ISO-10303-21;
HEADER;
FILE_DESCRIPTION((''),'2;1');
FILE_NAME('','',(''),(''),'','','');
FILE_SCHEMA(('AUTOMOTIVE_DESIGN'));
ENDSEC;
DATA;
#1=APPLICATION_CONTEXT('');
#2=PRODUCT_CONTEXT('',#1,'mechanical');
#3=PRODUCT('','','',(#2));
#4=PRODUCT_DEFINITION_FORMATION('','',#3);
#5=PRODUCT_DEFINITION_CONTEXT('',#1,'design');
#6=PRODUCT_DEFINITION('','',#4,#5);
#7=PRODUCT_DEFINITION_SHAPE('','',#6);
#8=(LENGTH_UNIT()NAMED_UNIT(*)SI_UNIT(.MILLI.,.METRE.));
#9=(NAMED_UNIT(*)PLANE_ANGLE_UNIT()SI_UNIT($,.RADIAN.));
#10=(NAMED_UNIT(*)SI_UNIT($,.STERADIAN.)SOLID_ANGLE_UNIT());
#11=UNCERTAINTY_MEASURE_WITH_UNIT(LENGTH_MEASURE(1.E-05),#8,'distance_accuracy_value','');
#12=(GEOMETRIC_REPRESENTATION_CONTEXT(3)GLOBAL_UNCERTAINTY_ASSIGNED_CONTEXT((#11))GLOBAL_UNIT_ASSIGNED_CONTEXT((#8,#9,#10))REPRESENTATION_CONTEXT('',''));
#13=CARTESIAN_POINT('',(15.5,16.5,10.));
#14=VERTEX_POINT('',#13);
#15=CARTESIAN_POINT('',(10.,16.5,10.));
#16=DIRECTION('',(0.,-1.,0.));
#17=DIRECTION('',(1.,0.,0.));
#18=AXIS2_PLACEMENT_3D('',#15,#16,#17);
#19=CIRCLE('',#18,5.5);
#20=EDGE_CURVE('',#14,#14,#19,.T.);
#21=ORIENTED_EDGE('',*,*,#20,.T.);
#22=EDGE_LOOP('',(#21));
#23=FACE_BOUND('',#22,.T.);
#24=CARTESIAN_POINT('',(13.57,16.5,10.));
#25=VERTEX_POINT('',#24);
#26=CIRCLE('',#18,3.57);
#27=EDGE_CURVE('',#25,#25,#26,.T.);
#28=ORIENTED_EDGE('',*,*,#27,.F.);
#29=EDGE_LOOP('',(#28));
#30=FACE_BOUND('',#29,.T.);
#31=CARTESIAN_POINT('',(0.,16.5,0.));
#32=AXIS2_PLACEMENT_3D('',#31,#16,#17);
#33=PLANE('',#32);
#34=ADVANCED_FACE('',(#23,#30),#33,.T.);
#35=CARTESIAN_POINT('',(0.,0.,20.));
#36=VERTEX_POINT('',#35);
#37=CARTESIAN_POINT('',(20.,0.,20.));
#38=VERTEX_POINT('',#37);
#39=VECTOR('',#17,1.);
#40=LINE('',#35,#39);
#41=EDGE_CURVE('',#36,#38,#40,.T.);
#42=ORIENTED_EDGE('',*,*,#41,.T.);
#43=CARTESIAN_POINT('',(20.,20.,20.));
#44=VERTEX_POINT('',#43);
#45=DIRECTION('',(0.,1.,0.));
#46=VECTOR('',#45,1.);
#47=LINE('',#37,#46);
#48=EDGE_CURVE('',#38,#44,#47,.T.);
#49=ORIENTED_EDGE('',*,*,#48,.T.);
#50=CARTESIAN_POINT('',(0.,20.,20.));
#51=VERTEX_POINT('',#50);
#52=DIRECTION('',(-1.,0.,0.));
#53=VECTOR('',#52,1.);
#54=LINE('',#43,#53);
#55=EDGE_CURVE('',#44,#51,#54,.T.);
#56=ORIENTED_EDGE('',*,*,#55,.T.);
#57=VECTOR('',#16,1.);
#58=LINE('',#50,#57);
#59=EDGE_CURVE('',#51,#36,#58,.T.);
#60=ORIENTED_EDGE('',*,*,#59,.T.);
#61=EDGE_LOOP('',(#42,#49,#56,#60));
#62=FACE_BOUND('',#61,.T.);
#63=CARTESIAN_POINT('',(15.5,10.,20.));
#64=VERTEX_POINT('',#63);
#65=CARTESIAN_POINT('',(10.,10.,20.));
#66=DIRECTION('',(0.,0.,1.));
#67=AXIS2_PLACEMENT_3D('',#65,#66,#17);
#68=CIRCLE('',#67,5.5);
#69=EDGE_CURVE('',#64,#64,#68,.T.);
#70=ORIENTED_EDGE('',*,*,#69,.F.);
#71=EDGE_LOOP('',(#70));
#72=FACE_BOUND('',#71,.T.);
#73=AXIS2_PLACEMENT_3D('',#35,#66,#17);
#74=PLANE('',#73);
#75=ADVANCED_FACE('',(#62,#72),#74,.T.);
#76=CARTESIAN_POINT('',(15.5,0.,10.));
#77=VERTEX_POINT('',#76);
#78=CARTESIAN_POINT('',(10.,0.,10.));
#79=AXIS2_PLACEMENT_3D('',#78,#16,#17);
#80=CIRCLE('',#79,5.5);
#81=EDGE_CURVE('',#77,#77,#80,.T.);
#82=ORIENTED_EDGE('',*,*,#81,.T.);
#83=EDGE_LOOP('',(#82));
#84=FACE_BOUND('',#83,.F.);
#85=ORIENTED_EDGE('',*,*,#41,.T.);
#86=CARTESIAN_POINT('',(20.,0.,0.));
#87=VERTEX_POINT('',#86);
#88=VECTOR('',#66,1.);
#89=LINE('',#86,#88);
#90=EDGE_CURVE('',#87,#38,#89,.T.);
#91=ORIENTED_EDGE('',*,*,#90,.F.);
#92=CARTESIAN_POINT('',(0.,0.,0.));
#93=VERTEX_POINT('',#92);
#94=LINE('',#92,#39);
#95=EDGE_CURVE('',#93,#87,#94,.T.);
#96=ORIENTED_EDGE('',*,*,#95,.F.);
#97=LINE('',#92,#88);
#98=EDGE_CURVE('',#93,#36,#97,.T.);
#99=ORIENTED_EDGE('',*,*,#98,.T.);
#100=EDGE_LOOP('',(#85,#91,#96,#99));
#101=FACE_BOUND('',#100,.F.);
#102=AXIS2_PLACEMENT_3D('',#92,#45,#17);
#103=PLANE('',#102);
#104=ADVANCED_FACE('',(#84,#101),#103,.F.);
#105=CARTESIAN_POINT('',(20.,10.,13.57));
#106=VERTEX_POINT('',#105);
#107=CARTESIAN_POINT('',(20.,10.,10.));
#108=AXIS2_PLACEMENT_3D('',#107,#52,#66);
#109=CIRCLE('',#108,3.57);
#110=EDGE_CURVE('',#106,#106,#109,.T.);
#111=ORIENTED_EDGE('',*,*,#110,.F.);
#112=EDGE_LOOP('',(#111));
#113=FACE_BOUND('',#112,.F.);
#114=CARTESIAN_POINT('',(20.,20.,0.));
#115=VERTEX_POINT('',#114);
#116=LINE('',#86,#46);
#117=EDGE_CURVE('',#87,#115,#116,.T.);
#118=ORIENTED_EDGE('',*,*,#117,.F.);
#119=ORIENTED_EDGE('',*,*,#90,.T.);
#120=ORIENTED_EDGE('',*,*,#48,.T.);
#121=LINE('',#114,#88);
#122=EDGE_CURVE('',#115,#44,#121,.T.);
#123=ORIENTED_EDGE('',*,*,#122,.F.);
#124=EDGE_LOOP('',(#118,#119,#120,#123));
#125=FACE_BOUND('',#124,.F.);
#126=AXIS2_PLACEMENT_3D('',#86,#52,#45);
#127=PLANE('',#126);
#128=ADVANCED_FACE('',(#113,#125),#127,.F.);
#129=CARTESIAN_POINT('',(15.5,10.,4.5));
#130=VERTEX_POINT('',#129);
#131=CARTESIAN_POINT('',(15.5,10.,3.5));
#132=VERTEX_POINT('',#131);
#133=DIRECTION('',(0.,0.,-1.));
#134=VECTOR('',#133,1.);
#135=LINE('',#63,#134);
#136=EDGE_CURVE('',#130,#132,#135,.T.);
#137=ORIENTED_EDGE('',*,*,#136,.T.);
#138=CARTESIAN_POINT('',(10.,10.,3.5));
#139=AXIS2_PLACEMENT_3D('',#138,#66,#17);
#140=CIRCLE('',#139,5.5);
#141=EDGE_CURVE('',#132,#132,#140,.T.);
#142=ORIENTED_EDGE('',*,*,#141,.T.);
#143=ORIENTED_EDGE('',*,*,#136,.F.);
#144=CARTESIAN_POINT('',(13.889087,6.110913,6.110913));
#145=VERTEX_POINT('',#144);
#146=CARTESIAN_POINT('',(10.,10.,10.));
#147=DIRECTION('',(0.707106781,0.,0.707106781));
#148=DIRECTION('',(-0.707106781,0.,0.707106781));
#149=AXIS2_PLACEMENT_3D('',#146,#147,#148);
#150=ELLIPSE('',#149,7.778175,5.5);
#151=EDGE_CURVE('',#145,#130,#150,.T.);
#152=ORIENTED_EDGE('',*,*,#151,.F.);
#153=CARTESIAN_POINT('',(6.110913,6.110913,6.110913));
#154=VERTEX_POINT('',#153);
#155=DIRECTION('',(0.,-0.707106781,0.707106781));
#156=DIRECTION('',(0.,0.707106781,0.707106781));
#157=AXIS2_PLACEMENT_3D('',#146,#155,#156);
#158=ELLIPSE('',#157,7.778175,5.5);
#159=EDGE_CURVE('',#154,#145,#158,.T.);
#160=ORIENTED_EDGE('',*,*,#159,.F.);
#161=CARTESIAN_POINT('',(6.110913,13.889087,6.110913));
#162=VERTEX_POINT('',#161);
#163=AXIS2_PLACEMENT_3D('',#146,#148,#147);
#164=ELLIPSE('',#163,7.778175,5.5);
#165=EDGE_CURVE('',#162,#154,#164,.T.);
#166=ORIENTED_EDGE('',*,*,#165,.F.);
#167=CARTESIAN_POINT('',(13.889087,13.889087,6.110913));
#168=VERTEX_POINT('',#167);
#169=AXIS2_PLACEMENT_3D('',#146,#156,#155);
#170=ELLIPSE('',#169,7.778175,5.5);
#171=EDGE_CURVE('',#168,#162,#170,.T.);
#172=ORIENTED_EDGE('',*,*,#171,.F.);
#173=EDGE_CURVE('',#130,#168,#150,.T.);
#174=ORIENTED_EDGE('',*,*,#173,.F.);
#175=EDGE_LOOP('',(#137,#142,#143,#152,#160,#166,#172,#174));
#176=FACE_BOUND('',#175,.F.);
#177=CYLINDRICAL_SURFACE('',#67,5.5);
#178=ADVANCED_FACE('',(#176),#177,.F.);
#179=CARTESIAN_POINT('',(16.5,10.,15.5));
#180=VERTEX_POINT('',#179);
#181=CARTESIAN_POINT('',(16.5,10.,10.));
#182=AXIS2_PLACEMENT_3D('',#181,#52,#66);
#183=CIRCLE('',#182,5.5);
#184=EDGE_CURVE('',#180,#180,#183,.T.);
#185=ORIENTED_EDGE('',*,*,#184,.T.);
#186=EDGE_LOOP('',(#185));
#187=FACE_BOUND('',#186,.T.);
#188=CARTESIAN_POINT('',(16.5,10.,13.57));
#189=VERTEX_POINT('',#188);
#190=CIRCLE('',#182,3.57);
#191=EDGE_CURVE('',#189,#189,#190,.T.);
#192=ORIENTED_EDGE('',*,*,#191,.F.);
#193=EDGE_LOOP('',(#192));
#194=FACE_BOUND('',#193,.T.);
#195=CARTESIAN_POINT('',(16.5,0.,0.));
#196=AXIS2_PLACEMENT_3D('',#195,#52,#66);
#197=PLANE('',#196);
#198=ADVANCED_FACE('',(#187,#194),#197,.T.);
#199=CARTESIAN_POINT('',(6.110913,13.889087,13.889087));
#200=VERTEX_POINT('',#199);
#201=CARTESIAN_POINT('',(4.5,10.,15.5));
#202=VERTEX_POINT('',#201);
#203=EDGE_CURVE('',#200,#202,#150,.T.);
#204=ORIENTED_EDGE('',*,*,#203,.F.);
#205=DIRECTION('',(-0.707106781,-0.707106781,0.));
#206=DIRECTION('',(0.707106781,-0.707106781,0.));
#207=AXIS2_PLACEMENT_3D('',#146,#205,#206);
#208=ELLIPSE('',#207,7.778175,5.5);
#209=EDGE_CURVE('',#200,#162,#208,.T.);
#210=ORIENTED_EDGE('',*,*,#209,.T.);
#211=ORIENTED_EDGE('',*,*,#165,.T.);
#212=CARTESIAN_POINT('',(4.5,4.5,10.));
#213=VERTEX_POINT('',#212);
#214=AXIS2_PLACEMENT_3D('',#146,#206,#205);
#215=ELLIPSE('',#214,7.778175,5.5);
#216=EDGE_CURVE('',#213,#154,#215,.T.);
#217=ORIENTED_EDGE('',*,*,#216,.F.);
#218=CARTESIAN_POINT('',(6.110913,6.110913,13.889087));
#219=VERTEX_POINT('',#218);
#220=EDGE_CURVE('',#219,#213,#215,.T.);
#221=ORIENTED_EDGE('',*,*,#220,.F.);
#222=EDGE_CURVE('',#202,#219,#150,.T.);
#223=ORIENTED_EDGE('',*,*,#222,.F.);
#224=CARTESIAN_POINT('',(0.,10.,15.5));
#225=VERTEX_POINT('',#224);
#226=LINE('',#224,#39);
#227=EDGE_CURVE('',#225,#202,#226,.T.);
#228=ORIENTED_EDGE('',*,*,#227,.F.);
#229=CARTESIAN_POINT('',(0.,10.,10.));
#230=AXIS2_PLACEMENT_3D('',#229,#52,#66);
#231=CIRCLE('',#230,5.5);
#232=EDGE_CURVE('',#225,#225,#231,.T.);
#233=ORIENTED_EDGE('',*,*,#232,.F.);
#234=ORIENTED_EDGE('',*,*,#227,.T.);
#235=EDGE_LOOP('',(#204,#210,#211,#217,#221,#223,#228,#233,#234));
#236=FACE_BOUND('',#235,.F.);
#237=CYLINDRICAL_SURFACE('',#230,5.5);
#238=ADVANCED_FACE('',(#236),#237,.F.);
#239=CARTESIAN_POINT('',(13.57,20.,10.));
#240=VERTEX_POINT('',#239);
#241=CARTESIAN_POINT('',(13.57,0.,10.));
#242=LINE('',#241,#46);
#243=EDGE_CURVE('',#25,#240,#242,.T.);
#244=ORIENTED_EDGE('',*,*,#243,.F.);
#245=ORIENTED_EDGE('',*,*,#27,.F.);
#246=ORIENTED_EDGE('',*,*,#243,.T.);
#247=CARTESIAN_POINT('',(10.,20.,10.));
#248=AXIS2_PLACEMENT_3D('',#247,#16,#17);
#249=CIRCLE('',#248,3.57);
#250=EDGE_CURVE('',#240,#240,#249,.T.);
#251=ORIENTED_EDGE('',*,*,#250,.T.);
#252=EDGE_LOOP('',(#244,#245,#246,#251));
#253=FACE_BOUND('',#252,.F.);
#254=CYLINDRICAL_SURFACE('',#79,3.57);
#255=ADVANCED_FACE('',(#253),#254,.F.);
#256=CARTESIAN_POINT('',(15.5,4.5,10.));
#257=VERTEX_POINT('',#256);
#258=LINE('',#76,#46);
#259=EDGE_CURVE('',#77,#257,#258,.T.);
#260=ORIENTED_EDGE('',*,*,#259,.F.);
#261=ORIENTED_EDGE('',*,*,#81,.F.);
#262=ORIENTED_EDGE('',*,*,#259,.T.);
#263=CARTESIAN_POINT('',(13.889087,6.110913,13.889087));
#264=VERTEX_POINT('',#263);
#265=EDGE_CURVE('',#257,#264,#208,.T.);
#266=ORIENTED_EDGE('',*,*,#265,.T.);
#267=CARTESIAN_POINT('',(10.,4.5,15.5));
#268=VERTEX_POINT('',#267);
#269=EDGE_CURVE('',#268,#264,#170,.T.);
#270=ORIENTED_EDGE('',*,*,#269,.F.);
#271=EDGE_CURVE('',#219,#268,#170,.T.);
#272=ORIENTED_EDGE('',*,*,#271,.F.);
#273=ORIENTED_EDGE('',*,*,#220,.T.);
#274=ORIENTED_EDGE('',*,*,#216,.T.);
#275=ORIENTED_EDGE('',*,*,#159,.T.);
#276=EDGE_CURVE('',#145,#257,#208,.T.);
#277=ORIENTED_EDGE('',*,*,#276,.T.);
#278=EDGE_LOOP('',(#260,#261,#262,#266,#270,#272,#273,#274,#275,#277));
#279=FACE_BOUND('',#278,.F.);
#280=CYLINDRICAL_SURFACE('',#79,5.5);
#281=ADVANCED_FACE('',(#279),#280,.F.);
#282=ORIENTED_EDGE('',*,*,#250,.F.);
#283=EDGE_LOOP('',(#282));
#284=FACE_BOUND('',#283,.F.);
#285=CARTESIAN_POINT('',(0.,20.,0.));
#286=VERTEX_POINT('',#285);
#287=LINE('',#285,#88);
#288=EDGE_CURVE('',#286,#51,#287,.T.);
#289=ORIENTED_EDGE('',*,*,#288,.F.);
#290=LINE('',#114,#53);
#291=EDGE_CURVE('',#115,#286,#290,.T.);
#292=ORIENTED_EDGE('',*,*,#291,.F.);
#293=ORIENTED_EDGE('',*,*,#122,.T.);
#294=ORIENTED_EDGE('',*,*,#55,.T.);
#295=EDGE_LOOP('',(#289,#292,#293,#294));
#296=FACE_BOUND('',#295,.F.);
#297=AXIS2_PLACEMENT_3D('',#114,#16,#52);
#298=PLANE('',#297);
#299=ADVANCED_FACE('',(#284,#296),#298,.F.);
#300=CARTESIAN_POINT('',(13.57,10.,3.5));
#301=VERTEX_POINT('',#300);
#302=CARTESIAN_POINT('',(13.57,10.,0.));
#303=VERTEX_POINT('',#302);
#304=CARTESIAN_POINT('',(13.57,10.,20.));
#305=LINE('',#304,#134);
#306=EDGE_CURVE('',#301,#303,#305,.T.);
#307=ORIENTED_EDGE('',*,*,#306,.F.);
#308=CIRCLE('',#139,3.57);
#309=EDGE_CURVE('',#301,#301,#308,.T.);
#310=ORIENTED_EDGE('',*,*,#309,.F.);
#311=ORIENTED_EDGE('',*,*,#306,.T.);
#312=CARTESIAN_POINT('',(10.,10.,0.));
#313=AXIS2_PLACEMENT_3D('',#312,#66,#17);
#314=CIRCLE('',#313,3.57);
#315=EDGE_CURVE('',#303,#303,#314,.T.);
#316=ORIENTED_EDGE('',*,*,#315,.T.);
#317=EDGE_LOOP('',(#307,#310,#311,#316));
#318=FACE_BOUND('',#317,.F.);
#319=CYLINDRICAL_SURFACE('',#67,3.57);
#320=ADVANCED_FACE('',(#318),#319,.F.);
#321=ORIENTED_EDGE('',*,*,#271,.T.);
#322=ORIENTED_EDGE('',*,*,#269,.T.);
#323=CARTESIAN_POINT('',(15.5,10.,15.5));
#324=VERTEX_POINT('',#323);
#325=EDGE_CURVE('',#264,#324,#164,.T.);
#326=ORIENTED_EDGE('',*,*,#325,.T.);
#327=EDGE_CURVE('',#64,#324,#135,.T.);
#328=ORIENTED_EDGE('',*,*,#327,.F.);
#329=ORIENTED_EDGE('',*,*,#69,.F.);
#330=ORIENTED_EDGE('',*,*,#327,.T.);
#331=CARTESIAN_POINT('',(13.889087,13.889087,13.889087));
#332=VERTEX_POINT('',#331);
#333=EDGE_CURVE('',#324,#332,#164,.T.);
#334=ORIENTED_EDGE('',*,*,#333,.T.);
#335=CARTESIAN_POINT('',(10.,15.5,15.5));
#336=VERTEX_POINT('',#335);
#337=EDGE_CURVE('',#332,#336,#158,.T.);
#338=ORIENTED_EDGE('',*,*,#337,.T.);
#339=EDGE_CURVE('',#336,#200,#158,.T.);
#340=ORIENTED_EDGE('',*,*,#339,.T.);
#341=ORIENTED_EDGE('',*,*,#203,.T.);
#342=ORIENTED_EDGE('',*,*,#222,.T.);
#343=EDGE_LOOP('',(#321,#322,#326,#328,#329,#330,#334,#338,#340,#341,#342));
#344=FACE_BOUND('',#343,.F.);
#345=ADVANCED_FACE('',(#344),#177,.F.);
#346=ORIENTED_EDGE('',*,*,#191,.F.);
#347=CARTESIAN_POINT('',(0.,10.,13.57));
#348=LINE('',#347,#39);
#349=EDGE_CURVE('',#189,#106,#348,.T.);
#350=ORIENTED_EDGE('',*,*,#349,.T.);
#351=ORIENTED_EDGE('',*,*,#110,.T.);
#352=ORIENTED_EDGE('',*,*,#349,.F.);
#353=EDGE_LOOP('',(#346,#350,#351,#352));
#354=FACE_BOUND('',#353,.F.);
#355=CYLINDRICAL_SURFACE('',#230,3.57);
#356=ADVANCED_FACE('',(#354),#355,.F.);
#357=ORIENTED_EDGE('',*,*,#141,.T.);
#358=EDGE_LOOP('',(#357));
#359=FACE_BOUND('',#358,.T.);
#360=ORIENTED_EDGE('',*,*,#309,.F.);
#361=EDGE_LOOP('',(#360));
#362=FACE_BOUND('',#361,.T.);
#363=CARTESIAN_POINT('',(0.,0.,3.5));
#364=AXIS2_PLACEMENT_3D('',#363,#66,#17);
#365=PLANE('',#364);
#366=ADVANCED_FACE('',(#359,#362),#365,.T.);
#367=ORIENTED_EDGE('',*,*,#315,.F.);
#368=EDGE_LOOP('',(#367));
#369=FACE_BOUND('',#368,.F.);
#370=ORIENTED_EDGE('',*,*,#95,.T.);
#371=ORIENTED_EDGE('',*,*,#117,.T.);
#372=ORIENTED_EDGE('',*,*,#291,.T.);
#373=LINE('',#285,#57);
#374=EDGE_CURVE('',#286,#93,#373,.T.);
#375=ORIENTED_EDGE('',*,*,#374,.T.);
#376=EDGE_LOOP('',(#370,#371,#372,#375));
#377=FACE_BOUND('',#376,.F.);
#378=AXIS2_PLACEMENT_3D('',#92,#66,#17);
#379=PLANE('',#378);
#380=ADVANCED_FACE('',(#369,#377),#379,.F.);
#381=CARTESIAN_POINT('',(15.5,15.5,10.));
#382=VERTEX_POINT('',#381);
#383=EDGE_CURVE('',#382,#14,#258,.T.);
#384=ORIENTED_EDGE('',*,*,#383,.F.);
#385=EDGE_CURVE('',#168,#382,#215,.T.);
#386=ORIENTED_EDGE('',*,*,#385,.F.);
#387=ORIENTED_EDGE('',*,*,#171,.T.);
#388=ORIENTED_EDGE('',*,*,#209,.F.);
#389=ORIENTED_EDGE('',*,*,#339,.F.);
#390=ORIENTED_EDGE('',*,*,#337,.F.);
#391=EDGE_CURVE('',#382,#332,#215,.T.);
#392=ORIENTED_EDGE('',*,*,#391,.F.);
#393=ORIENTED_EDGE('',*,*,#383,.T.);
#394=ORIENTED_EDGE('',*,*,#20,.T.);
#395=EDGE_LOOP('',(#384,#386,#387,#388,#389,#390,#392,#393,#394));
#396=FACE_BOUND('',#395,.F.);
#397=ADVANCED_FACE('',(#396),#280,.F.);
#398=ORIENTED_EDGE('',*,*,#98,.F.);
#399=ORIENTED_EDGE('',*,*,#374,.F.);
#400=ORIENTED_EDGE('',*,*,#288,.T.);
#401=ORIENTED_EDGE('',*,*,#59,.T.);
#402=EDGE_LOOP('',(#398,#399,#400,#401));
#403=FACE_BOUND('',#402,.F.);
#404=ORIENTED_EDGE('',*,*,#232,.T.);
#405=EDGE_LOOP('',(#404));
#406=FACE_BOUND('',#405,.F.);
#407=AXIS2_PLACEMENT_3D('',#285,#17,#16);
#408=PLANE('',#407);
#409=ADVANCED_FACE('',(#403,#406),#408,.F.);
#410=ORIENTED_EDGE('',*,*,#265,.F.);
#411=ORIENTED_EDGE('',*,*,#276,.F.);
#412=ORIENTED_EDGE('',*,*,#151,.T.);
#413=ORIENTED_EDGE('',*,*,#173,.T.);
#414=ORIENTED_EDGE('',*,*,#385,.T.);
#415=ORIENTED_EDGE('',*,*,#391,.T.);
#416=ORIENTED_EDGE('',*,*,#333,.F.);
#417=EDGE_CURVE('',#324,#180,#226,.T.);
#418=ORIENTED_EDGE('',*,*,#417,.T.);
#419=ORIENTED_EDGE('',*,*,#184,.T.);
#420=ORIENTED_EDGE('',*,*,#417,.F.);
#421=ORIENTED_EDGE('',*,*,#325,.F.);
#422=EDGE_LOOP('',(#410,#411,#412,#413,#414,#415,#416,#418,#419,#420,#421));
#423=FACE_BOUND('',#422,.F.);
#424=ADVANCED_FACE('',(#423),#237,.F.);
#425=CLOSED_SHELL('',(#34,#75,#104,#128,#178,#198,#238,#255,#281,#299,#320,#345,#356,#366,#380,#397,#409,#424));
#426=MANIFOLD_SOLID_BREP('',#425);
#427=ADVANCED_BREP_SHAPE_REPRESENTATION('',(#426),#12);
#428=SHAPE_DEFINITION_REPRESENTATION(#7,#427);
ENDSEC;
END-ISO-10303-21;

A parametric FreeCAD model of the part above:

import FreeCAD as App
import Part
import Sketcher


def add_polygon(sketch, points):
    """Adds a closed chain of lines whose ends are joined by coincident constraints."""
    first, n = sketch.GeometryCount, len(points)
    for a, b in zip(points, points[1:] + points[:1]):
        sketch.addGeometry(Part.LineSegment(App.Vector(*a, 0), App.Vector(*b, 0)), False)
    for i in range(n):
        sketch.addConstraint(Sketcher.Constraint("Coincident", first + i, 2, first + (i + 1) % n, 1))

doc = App.newDocument("Part")
body = doc.addObject("PartDesign::Body", "Body")

# Sketch on XY plane
sketch1 = body.newObject("Sketcher::SketchObject", "Sketch")
sketch1.AttachmentSupport = (doc.getObject("XY_Plane"), [""])
sketch1.MapMode = "FlatFace"
add_polygon(sketch1, [(0, 20), (0, 0), (20, 0), (20, 20)])  # lines 0-3
sketch1.addConstraint(Sketcher.Constraint("Vertical", 0))
sketch1.addConstraint(Sketcher.Constraint("Horizontal", 1))
sketch1.addConstraint(Sketcher.Constraint("Vertical", 2))
sketch1.addConstraint(Sketcher.Constraint("Horizontal", 3))
sketch1.addConstraint(Sketcher.Constraint("Coincident", 0, 2, -1, 1))
sketch1.addConstraint(Sketcher.Constraint("Equal", 3, 0))
sketch1.addConstraint(Sketcher.Constraint("DistanceX", 1, 1, 1, 2, 20.0))
pad1 = body.newObject("PartDesign::Pad", "Pad")
pad1.Profile = sketch1
pad1.Length = 20

# Sketch on XY plane
sketch2 = body.newObject("Sketcher::SketchObject", "Sketch001")
sketch2.AttachmentSupport = (doc.getObject("XY_Plane"), [""])
sketch2.MapMode = "FlatFace"
sketch2.AttachmentOffset = App.Placement(App.Vector(0, 0, 20), App.Rotation())
sketch2.addGeometry(Part.Circle(App.Vector(10, 10, 0), App.Vector(0, 0, 1), 3.57), False)
sketch2.addConstraint(Sketcher.Constraint("Diameter", 0, 7.14))
sketch2.addConstraint(Sketcher.Constraint("DistanceX", -1, 1, 0, 3, 10.0))
sketch2.addConstraint(Sketcher.Constraint("DistanceY", -1, 1, 0, 3, 10.0))
pocket1 = body.newObject("PartDesign::Pocket", "Pocket")
pocket1.Profile = sketch2
pocket1.Type = "ThroughAll"

# Sketch on XY plane
sketch3 = body.newObject("Sketcher::SketchObject", "Sketch002")
sketch3.AttachmentSupport = (doc.getObject("XY_Plane"), [""])
sketch3.MapMode = "FlatFace"
sketch3.AttachmentOffset = App.Placement(App.Vector(0, 0, 20), App.Rotation())
sketch3.addGeometry(Part.Circle(App.Vector(10, 10, 0), App.Vector(0, 0, 1), 5.5), False)
sketch3.addGeometry(Part.Circle(App.Vector(10, 10, 0), App.Vector(0, 0, 1), 3.57), False)
sketch3.addConstraint(Sketcher.Constraint("Coincident", 1, 3, 0, 3))
sketch3.addConstraint(Sketcher.Constraint("Diameter", 0, 11.0))
sketch3.addConstraint(Sketcher.Constraint("Diameter", 1, 7.14))
sketch3.addConstraint(Sketcher.Constraint("DistanceX", -1, 1, 0, 3, 10.0))
sketch3.addConstraint(Sketcher.Constraint("DistanceY", -1, 1, 0, 3, 10.0))
pocket2 = body.newObject("PartDesign::Pocket", "Pocket001")
pocket2.Profile = sketch3
pocket2.Length = 16.5
doc.recompute()

datumline = body.newObject("PartDesign::Line", "DatumLine")
datumline.Placement = App.Placement(App.Vector(0, 10, 10), App.Rotation(App.Vector(0, 0, 1), App.Vector(1, 0, 0)))
polarpattern = body.newObject("PartDesign::PolarPattern", "PolarPattern")
polarpattern.Originals = [pocket2, pocket1]
polarpattern.Axis = (datumline, [""])
polarpattern.Angle = 90
polarpattern.Occurrences = 2
body.Tip = polarpattern
doc.recompute()

datumline2 = body.newObject("PartDesign::Line", "DatumLine001")
datumline2.Placement = App.Placement(App.Vector(10, 0, 10), App.Rotation(App.Vector(0, 0, 1), App.Vector(0, 1, 0)))
polarpattern2 = body.newObject("PartDesign::PolarPattern", "PolarPattern001")
polarpattern2.Originals = [pocket1, pocket2]
polarpattern2.Axis = (datumline2, [""])
polarpattern2.Angle = 90
polarpattern2.Occurrences = 2
polarpattern2.Reversed = True
body.Tip = polarpattern2

doc.recompute()
